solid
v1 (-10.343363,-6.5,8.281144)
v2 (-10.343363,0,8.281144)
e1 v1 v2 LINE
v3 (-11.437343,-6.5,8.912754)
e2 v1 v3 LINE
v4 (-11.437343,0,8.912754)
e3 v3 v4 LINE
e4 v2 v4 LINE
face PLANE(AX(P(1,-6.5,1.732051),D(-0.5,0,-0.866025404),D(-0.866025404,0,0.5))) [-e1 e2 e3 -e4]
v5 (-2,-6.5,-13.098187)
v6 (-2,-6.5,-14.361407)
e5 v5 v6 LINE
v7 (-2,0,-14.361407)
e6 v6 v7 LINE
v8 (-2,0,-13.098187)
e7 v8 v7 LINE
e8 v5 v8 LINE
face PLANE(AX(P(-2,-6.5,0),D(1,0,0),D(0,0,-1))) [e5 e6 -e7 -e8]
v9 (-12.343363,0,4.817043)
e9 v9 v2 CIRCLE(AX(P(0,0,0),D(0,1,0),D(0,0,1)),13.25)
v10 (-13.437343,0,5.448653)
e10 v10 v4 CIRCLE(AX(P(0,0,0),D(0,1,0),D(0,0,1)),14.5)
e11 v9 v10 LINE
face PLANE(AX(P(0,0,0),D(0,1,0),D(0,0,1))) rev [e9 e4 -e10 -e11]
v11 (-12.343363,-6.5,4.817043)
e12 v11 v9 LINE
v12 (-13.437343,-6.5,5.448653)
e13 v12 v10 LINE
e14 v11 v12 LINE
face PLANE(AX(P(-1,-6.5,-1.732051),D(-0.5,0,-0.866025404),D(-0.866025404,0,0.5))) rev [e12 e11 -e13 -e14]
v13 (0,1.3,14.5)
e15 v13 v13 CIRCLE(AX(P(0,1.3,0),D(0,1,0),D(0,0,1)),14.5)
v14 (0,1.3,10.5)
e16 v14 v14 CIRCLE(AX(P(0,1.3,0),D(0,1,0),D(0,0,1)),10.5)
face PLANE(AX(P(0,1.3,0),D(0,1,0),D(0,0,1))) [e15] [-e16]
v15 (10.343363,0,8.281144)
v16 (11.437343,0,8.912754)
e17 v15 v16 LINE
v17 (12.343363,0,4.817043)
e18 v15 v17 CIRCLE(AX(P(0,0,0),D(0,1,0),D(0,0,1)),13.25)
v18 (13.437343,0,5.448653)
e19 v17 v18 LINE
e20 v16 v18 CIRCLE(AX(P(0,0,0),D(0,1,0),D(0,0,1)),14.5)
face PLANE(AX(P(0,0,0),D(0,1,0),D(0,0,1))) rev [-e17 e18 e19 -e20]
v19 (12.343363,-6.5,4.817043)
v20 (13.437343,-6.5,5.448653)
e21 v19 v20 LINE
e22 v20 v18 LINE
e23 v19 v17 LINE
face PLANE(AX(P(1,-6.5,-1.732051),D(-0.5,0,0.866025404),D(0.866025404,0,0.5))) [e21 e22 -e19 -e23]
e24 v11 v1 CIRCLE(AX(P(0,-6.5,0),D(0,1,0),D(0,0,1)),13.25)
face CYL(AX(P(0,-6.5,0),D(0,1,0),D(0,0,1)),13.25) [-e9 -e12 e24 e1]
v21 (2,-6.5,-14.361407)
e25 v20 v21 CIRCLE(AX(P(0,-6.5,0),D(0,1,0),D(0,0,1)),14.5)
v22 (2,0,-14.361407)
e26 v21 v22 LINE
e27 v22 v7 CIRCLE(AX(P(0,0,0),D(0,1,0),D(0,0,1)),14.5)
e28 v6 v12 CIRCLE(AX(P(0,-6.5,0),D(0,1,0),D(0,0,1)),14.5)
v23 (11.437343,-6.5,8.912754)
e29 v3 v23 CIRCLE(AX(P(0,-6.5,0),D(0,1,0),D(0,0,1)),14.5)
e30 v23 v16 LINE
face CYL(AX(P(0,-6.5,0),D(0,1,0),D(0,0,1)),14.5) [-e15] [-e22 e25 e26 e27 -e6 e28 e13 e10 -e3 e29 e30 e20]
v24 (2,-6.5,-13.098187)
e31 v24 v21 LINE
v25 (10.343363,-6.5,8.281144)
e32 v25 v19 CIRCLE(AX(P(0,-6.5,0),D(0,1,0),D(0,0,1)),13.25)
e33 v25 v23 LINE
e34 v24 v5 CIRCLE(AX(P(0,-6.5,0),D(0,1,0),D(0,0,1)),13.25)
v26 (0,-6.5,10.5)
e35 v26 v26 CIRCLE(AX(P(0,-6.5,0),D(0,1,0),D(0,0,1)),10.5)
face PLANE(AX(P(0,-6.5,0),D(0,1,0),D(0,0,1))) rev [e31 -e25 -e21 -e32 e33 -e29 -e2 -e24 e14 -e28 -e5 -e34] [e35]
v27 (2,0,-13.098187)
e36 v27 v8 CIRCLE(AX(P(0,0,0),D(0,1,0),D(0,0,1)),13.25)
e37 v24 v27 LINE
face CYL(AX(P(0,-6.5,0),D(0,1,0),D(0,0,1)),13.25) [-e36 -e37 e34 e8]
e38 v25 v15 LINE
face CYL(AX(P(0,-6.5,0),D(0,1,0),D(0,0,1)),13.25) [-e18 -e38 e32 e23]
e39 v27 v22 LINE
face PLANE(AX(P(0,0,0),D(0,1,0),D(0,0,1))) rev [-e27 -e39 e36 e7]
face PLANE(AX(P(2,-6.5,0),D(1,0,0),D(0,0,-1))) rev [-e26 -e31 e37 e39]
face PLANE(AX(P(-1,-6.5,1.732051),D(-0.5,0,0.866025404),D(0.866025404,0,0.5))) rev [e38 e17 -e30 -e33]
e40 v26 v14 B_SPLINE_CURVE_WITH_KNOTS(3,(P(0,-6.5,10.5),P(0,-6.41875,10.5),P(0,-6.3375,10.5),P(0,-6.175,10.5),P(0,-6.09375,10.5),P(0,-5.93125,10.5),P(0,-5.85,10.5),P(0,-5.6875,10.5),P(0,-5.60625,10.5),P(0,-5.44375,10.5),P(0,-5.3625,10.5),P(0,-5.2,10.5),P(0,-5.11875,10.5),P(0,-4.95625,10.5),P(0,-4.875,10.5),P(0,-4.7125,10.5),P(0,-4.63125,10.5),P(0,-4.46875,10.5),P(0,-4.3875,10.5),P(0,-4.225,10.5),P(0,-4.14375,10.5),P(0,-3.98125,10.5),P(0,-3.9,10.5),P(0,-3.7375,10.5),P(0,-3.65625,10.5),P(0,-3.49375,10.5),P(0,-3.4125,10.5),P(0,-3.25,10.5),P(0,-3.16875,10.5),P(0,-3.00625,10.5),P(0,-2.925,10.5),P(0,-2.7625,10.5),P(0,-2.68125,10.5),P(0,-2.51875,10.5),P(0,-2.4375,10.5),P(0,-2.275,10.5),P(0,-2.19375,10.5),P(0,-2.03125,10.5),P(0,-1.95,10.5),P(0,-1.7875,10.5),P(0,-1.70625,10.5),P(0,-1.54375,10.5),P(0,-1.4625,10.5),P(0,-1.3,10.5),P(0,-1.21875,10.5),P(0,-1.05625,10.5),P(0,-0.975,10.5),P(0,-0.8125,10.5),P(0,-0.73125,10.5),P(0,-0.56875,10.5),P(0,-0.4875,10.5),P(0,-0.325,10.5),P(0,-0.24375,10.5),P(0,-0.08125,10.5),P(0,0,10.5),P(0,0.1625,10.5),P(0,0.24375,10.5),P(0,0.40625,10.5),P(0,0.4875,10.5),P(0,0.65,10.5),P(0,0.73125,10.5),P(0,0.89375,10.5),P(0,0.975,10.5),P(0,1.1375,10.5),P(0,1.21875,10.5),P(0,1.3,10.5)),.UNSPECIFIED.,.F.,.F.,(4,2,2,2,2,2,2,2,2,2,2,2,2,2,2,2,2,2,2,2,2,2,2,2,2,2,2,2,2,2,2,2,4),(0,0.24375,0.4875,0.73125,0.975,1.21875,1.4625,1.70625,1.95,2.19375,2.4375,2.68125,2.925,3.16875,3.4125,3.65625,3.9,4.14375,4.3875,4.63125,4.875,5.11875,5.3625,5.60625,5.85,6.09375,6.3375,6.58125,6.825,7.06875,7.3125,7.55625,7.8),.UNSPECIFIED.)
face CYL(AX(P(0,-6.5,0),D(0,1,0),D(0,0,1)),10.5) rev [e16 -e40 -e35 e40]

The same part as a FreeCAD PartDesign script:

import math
import FreeCAD as App
import Part
import Sketcher
Q = App.Units.Quantity

doc = App.newDocument("Part")
params = doc.addObject("Spreadsheet::Sheet", "Params")
for row, (alias, value) in enumerate([
    ("sketch1_diameter", "21 mm"),
    ("sketch1_radius", "14.5 mm"),
    ("sketch1_radius2", "13.25 mm"),
    ("pad1_length", "6.5 mm"),
    ("sketch2_diameter", "21 mm"),
    ("sketch2_radius", "14.5 mm"),
    ("pad2_length", "1.3 mm"),
], start=1):
    params.set(f"A{row}", alias)
    params.set(f"B{row}", "=" + value)
    params.setAlias(f"B{row}", alias)

body = doc.addObject("PartDesign::Body", "Body")

# Sketch on XZ plane
sketch1 = body.newObject("Sketcher::SketchObject", "Sketch")
sketch1.AttachmentSupport = (doc.getObject("XZ_Plane"), [""])
sketch1.MapMode = "FlatFace"
sketch1.addGeometry([
    Part.ArcOfCircle(Part.Circle(App.Vector(0, 0, 0), App.Vector(0, 0, 1), 13.2), math.radians(-98.68), math.radians(-81.32)),  # 0
    Part.LineSegment(App.Vector(-2, -13.1, 0), App.Vector(-2, -14.4, 0)),  # 1
    Part.ArcOfCircle(Part.Circle(App.Vector(0, 0, 0), App.Vector(0, 0, 1), 14.5), math.radians(158), math.radians(262)),  # 2
    Part.LineSegment(App.Vector(-13.4, 5.4, 0), App.Vector(-12.3, 4.8, 0)),  # 3
    Part.ArcOfCircle(Part.Circle(App.Vector(0, 0, 0), App.Vector(0, 0, 1), 13.2), math.radians(141.32), math.radians(158.68)),  # 4
    Part.LineSegment(App.Vector(-10.3, 8.3, 0), App.Vector(-11.4, 8.9, 0)),  # 5
    Part.ArcOfCircle(Part.Circle(App.Vector(0, 0, 0), App.Vector(0, 0, 1), 14.5), math.radians(38), math.radians(142)),  # 6
    Part.LineSegment(App.Vector(11.4, 8.9, 0), App.Vector(10.3, 8.3, 0)),  # 7
    Part.ArcOfCircle(Part.Circle(App.Vector(0, 0, 0), App.Vector(0, 0, 1), 13.2), math.radians(21.32), math.radians(38.68)),  # 8
    Part.LineSegment(App.Vector(12.3, 4.8, 0), App.Vector(13.4, 5.4, 0)),  # 9
    Part.ArcOfCircle(Part.Circle(App.Vector(0, 0, 0), App.Vector(0, 0, 1), 14.5), math.radians(0), math.radians(22)),  # 10
    Part.ArcOfCircle(Part.Circle(App.Vector(0, 0, 0), App.Vector(0, 0, 1), 14.5), math.radians(-82), math.radians(0)),  # 11
    Part.LineSegment(App.Vector(2, -14.4, 0), App.Vector(2, -13.1, 0)),  # 12
    Part.Circle(App.Vector(0, 0, 0), App.Vector(0, 0, 1), 10.5),  # 13
], False)
sketch1.addConstraint([
    Sketcher.Constraint("Coincident", 0, 1, 1, 1),
    Sketcher.Constraint("Coincident", 1, 2, 2, 2),
    Sketcher.Constraint("Coincident", 2, 1, 3, 1),
    Sketcher.Constraint("Coincident", 3, 2, 4, 2),
    Sketcher.Constraint("Coincident", 4, 1, 5, 1),
    Sketcher.Constraint("Coincident", 5, 2, 6, 2),
    Sketcher.Constraint("Coincident", 6, 1, 7, 1),
    Sketcher.Constraint("Coincident", 7, 2, 8, 2),
    Sketcher.Constraint("Coincident", 8, 1, 9, 1),
    Sketcher.Constraint("Coincident", 9, 2, 10, 2),
    Sketcher.Constraint("Tangent", 10, 1, 11, 2),
    Sketcher.Constraint("Coincident", 11, 1, 12, 1),
    Sketcher.Constraint("Coincident", 12, 2, 0, 2),
    Sketcher.Constraint("Vertical", 1),
    Sketcher.Constraint("Vertical", 12),
    Sketcher.Constraint("Coincident", 0, 3, -1, 1),
    Sketcher.Constraint("Coincident", 2, 3, -1, 1),
    Sketcher.Constraint("Coincident", 4, 3, -1, 1),
    Sketcher.Constraint("Coincident", 6, 3, -1, 1),
    Sketcher.Constraint("Coincident", 8, 3, -1, 1),
    Sketcher.Constraint("Coincident", 10, 3, -1, 1),
    Sketcher.Constraint("Coincident", 13, 3, -1, 1),
    Sketcher.Constraint("Equal", 0, 4),
    Sketcher.Constraint("Equal", 2, 6),
    Sketcher.Constraint("Equal", 4, 8),
    Sketcher.Constraint("Equal", 6, 10),
    Sketcher.Constraint("Equal", 10, 11),
    Sketcher.Constraint("PointOnObject", 10, 1, -1),
    Sketcher.Constraint("Parallel", 3, 5),
    Sketcher.Constraint("Parallel", 7, 9),
    Sketcher.Constraint("Horizontal", 5, 2, 6, 1),
    Sketcher.Constraint("Horizontal", 4, 1, 7, 2),
    Sketcher.Constraint("Horizontal", 3, 2, 8, 1),
    Sketcher.Constraint("Horizontal", 1, 2, 11, 1),
    Sketcher.Constraint("Equal", 3, 5),
    Sketcher.Constraint("Diameter", 13, Q("21 mm")),
    Sketcher.Constraint("Radius", 2, Q("14.5 mm")),
    Sketcher.Constraint("Angle", 3, Q("-30 deg")),
    Sketcher.Constraint("Radius", 0, Q("13.25 mm")),
    Sketcher.Constraint("DistanceX", 0, 1, -1, 1, Q("2 mm")),
    Sketcher.Constraint("DistanceX", 3, 2, 4, 1, Q("2 mm")),
])
sketch1.setExpression("Constraints[35]", "Params.sketch1_diameter")
sketch1.setExpression("Constraints[36]", "Params.sketch1_radius")
sketch1.setExpression("Constraints[38]", "Params.sketch1_radius2")
pad1 = body.newObject("PartDesign::Pad", "Pad")
pad1.Profile = sketch1
pad1.setExpression("Length", "Params.pad1_length")

# Sketch on XZ plane
sketch2 = body.newObject("Sketcher::SketchObject", "Sketch001")
sketch2.AttachmentSupport = (doc.getObject("XZ_Plane"), [""])
sketch2.MapMode = "FlatFace"
sketch2.AttachmentOffset = App.Placement(App.Vector(0, 0, -1.3), App.Rotation())
sketch2.addGeometry([
    Part.ArcOfCircle(Part.Circle(App.Vector(0, 0, 0), App.Vector(0, 0, 1), 14.5), math.radians(158), math.radians(262)),  # 0
    Part.ArcOfCircle(Part.Circle(App.Vector(0, 0, 0), App.Vector(0, 0, 1), 14.5), math.radians(142.07), math.radians(157.93)),  # 1
    Part.ArcOfCircle(Part.Circle(App.Vector(0, 0, 0), App.Vector(0, 0, 1), 14.5), math.radians(38), math.radians(142)),  # 2
    Part.ArcOfCircle(Part.Circle(App.Vector(0, 0, 0), App.Vector(0, 0, 1), 14.5), math.radians(22.07), math.radians(37.93)),  # 3
    Part.ArcOfCircle(Part.Circle(App.Vector(0, 0, 0), App.Vector(0, 0, 1), 14.5), math.radians(0), math.radians(22)),  # 4
    Part.ArcOfCircle(Part.Circle(App.Vector(0, 0, 0), App.Vector(0, 0, 1), 14.5), math.radians(-82), math.radians(0)),  # 5
    Part.ArcOfCircle(Part.Circle(App.Vector(0, 0, 0), App.Vector(0, 0, 1), 14.5), math.radians(-97.93), math.radians(-82.07)),  # 6
    Part.Circle(App.Vector(0, 0, 0), App.Vector(0, 0, 1), 10.5),  # 7
], False)
sketch2.addConstraint([
    Sketcher.Constraint("Tangent", 0, 1, 1, 2),
    Sketcher.Constraint("Tangent", 1, 1, 2, 2),
    Sketcher.Constraint("Tangent", 2, 1, 3, 2),
    Sketcher.Constraint("Tangent", 3, 1, 4, 2),
    Sketcher.Constraint("Tangent", 4, 1, 5, 2),
    Sketcher.Constraint("Tangent", 5, 1, 6, 2),
    Sketcher.Constraint("Tangent", 6, 1, 0, 2),
    Sketcher.Constraint("Coincident", 0, 3, -1, 1),
    Sketcher.Constraint("Coincident", 2, 3, -1, 1),
    Sketcher.Constraint("Coincident", 4, 3, -1, 1),
    Sketcher.Constraint("Coincident", 7, 3, -1, 1),
    Sketcher.Constraint("PointOnObject", 4, 1, -1),
    Sketcher.Constraint("Horizontal", 1, 1, 2, 1),
    Sketcher.Constraint("Horizontal", 0, 1, 3, 1),
    Sketcher.Constraint("Horizontal", 5, 1, 6, 1),
    Sketcher.Constraint("Diameter", 7, Q("21 mm")),
    Sketcher.Constraint("Radius", 0, Q("14.5 mm")),
    Sketcher.Constraint("DistanceX", -1, 1, 5, 1, Q("2 mm")),
    Sketcher.Constraint("DistanceX", 0, 1, 1, 1, Q("2 mm")),
    Sketcher.Constraint("DistanceY", 0, 1, 1, 1, Q("3.464102 mm")),
])
sketch2.setExpression("Constraints[15]", "Params.sketch2_diameter")
sketch2.setExpression("Constraints[16]", "Params.sketch2_radius")
pad2 = body.newObject("PartDesign::Pad", "Pad001")
pad2.Profile = sketch2
pad2.setExpression("Length", "Params.pad2_length")

doc.recompute()
